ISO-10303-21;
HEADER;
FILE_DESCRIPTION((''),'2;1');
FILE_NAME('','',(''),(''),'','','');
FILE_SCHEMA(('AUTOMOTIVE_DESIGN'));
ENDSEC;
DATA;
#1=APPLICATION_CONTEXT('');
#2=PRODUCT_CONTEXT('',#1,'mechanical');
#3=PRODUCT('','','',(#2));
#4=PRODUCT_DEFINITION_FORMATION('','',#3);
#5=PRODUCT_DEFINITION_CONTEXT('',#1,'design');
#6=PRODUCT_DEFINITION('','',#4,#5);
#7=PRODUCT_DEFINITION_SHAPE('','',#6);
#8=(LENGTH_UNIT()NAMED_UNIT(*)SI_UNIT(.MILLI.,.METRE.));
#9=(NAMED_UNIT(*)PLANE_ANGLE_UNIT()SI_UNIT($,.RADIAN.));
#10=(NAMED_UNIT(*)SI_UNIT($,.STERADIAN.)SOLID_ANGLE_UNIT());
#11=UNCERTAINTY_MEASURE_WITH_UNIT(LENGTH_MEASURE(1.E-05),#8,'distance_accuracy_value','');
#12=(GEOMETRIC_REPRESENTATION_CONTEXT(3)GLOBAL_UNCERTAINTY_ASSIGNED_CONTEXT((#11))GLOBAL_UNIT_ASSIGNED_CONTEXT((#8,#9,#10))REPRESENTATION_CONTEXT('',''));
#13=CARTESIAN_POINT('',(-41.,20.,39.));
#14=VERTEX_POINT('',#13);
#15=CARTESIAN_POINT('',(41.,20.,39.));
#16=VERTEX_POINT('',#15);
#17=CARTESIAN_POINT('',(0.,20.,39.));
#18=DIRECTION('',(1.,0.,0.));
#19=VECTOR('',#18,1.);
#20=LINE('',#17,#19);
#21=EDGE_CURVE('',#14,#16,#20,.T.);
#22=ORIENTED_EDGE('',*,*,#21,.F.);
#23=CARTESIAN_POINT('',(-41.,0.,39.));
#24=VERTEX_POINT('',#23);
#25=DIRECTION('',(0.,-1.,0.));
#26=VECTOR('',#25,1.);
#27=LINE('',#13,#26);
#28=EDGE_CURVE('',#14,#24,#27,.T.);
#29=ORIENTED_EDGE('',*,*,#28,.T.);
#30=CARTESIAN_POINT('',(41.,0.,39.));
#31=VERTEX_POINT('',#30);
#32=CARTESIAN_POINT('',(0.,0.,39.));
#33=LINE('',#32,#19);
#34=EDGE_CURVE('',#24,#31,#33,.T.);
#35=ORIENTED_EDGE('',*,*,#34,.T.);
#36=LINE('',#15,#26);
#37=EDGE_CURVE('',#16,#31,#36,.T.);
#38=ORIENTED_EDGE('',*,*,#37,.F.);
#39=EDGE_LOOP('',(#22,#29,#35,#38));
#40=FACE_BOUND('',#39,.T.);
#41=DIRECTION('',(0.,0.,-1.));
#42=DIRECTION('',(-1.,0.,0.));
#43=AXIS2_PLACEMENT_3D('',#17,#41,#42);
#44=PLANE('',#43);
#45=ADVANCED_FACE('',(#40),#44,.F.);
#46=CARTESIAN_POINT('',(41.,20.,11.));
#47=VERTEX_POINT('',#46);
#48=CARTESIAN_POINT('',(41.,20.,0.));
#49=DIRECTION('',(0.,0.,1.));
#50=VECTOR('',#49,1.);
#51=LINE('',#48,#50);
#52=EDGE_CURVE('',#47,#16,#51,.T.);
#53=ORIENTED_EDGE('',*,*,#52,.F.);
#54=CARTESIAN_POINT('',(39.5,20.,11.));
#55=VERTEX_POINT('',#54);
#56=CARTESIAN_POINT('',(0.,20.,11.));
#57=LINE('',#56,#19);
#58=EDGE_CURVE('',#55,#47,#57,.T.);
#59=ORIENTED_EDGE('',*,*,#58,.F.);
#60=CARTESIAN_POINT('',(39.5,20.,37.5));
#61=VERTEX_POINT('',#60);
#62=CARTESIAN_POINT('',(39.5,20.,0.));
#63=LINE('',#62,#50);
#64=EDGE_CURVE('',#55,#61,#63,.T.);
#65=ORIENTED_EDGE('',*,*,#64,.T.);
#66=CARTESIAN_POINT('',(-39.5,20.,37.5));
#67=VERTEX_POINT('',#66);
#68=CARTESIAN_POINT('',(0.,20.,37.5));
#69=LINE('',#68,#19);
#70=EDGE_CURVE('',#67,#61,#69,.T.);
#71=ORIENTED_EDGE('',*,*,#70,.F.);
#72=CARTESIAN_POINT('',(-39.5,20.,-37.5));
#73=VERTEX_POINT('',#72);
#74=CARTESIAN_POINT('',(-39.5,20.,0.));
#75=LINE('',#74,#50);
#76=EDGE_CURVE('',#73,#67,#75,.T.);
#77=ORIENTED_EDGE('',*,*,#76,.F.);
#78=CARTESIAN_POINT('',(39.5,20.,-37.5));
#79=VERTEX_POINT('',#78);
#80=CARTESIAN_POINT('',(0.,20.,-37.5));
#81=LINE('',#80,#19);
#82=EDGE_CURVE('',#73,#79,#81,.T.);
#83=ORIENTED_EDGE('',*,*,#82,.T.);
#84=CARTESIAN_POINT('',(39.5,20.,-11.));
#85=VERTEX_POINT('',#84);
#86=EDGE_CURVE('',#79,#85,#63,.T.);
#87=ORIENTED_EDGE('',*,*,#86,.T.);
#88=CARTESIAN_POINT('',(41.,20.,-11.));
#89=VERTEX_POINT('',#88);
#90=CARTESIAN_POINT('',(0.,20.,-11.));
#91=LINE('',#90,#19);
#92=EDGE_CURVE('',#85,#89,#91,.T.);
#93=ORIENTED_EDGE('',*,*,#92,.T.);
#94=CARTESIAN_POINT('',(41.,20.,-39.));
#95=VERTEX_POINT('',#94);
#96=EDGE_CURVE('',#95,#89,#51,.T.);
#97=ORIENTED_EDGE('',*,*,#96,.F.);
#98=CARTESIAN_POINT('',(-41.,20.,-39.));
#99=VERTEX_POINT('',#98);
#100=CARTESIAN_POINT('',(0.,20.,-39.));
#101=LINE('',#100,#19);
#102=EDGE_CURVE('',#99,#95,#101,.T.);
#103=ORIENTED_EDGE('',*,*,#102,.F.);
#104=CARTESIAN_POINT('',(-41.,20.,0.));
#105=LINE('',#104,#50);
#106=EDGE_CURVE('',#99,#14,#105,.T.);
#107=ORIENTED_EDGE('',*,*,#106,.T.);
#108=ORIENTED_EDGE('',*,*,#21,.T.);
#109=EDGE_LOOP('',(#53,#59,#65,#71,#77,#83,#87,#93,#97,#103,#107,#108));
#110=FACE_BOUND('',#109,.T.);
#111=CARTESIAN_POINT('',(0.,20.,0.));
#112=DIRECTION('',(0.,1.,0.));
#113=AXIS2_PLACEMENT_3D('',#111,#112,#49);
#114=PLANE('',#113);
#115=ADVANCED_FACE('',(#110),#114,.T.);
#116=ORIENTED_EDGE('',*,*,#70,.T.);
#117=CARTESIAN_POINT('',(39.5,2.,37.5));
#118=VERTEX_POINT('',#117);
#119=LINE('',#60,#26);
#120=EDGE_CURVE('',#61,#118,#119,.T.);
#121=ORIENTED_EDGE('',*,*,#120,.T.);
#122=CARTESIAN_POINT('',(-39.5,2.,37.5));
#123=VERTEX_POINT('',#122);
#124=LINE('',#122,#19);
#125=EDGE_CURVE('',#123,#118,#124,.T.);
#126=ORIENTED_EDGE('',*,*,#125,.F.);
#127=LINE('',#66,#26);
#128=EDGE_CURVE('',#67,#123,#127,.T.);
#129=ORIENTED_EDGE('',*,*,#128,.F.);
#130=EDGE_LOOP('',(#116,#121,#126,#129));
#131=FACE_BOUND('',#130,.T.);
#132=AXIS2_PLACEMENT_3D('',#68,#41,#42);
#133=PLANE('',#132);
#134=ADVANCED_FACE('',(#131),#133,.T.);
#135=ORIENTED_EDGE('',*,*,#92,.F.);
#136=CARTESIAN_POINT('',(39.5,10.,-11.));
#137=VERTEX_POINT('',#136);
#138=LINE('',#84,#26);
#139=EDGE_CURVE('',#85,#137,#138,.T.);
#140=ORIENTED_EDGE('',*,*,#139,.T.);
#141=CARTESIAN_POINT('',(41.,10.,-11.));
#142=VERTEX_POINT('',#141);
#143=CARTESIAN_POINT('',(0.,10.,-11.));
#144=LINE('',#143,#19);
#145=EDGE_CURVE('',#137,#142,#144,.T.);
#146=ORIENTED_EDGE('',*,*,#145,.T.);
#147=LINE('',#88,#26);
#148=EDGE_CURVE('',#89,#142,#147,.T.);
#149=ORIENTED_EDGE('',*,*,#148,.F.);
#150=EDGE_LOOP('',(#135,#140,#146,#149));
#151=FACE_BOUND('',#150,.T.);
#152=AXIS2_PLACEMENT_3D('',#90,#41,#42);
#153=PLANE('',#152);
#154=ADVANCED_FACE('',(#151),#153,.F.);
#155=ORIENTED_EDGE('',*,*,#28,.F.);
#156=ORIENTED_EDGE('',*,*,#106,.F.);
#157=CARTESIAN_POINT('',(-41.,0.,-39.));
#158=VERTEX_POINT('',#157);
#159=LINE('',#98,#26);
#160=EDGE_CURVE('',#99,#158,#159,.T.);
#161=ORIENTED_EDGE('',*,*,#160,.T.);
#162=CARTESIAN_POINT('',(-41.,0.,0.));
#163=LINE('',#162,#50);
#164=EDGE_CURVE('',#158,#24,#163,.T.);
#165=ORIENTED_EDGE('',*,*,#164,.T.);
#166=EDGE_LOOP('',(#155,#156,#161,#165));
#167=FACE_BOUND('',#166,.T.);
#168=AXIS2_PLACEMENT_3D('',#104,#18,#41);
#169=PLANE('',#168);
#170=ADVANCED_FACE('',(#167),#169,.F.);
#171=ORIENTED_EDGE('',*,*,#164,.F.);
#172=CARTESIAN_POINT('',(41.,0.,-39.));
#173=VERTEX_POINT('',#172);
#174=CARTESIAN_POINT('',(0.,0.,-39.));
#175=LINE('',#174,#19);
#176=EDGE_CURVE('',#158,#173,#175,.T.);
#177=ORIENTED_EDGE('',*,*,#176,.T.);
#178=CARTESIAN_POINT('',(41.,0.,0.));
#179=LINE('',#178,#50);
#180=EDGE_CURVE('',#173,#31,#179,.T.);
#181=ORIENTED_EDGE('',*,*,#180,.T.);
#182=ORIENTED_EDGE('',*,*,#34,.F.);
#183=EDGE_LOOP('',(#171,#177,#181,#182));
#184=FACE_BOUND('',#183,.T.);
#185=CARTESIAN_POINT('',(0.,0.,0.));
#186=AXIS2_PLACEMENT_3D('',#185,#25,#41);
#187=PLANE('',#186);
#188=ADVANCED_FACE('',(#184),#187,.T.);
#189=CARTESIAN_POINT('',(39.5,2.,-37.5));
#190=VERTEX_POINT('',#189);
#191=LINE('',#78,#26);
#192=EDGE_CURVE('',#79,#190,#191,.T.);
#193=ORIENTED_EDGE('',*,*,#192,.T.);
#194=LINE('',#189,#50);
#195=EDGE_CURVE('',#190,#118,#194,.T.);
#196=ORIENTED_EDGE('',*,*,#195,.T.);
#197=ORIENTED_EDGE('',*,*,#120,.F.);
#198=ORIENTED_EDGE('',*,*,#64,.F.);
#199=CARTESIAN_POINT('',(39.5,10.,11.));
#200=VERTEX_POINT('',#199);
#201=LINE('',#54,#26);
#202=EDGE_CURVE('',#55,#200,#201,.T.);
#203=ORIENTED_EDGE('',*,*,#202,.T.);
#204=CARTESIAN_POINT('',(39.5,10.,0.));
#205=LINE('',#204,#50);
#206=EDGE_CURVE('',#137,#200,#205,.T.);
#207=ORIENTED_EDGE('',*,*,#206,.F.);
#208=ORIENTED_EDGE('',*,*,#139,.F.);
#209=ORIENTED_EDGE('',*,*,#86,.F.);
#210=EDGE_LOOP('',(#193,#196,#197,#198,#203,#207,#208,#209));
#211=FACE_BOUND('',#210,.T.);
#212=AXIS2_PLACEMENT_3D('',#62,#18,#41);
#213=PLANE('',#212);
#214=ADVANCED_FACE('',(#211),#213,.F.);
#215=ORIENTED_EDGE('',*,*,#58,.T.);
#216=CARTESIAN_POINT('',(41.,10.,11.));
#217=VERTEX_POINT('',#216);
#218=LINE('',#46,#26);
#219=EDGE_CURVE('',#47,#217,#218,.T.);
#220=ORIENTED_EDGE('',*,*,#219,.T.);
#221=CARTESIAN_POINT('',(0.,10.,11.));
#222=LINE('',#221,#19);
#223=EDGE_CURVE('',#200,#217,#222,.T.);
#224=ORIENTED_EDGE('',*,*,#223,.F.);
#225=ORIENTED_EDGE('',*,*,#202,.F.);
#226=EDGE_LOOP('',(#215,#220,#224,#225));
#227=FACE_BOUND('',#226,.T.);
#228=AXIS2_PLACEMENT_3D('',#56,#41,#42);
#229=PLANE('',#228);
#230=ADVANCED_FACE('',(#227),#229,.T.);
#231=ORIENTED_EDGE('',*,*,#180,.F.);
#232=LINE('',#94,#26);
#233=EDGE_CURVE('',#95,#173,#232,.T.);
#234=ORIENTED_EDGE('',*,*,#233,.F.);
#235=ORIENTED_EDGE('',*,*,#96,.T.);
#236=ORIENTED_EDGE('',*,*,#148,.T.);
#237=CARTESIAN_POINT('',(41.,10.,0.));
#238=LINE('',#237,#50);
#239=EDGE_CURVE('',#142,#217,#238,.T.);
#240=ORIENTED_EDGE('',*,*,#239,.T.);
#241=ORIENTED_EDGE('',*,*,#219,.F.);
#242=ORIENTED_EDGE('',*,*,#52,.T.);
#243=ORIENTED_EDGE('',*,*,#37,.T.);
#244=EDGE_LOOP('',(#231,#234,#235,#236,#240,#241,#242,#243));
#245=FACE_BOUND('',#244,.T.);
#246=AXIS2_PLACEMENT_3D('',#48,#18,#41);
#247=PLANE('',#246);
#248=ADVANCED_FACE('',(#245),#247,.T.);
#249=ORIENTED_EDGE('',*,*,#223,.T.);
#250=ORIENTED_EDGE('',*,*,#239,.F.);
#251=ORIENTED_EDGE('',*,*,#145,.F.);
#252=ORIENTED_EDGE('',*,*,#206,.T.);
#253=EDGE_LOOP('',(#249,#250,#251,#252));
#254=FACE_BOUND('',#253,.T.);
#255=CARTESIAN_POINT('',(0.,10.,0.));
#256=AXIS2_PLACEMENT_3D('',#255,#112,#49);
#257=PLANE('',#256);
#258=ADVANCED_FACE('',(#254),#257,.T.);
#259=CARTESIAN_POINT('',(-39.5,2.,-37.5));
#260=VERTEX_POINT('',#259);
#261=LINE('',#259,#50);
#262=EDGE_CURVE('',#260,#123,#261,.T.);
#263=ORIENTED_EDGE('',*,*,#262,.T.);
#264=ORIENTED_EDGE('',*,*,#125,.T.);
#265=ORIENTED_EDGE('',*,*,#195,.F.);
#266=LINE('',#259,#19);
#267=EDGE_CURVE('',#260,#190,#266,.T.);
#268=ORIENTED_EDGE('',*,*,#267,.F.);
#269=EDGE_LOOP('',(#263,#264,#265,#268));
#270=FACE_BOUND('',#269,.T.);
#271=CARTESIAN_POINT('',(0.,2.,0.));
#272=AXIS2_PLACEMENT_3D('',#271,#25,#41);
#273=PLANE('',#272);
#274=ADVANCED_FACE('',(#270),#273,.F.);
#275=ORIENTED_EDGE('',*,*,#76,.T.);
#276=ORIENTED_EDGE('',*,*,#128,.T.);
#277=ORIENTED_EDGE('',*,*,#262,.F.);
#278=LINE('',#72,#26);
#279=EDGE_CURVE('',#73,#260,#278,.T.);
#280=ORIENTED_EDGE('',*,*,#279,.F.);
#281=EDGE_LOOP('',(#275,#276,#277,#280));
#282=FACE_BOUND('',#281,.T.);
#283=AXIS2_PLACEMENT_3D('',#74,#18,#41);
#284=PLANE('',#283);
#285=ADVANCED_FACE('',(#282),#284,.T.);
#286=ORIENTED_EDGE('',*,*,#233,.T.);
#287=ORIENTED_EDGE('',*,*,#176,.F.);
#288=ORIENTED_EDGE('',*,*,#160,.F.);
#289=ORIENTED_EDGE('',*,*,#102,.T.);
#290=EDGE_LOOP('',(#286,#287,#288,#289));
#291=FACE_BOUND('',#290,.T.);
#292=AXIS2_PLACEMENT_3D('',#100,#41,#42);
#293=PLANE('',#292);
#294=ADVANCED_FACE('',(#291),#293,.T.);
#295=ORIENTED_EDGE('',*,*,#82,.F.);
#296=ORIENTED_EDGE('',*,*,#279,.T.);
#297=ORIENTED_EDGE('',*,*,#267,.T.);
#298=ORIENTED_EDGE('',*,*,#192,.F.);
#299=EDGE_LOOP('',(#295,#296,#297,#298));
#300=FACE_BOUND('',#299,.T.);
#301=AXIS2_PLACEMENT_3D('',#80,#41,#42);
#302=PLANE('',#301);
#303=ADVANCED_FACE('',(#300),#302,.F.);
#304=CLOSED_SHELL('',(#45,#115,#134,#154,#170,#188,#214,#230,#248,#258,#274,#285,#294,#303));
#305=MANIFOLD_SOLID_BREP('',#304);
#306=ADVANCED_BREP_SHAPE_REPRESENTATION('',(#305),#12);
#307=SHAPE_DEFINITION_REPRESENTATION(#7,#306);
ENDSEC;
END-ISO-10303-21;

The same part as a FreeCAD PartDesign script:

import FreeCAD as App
import Part
import Sketcher

V = App.Vector


def add_polygon(sketch, points):
    """Adds a closed chain of lines whose ends are joined by coincident constraints."""
    first, n = sketch.GeometryCount, len(points)
    for a, b in zip(points, points[1:] + points[:1]):
        sketch.addGeometry(Part.LineSegment(App.Vector(*a, 0), App.Vector(*b, 0)), False)
    for i in range(n):
        sketch.addConstraint(Sketcher.Constraint("Coincident", first + i, 2, first + (i + 1) % n, 1))

doc = App.newDocument("Part")
body = doc.addObject("PartDesign::Body", "Body")

# Sketch on XZ plane
sketch1 = doc.addObject("Sketcher::SketchObject", "Sketch")
body.addObject(sketch1)
sketch1.AttachmentSupport = (doc.XZ_Plane, [""])
sketch1.MapMode = "FlatFace"
add_polygon(sketch1, [(-39.5, -37.5), (-39.5, 37.5), (39.5, 37.5), (39.5, -37.5)])  # lines 0-3
sketch1.addConstraint([
    Sketcher.Constraint("Vertical", 0),
    Sketcher.Constraint("Horizontal", 1),
    Sketcher.Constraint("Vertical", 2),
    Sketcher.Constraint("Horizontal", 3),
    Sketcher.Constraint("Symmetric", 0, 2, 2, 2, -1, 1),
    Sketcher.Constraint("DistanceX", 1, 1, 1, 2, 79.0),
    Sketcher.Constraint("DistanceY", 0, 1, 0, 2, 75.0),
])
pad1 = doc.addObject("PartDesign::Pad", "Pad")
body.addObject(pad1)
pad1.Profile = sketch1
pad1.Length = 2
pad1.Reversed = True

# Sketch on XZ plane
sketch2 = doc.addObject("Sketcher::SketchObject", "Sketch001")
body.addObject(sketch2)
sketch2.AttachmentSupport = (doc.XZ_Plane, [""])
sketch2.MapMode = "FlatFace"
add_polygon(sketch2, [(-39.5, 37.5), (-39.5, -37.5), (39.5, -37.5), (39.5, -11), (41, -11), (41, -39), (-41, -39), (-41, 39), (41, 39), (41, 11), (39.5, 11), (39.5, 37.5)])  # lines 0-11
sketch2.addConstraint([
    Sketcher.Constraint("Vertical", 0),
    Sketcher.Constraint("Horizontal", 1),
    Sketcher.Constraint("Vertical", 2),
    Sketcher.Constraint("Horizontal", 3),
    Sketcher.Constraint("Vertical", 4),
    Sketcher.Constraint("Horizontal", 5),
    Sketcher.Constraint("Vertical", 6),
    Sketcher.Constraint("Horizontal", 7),
    Sketcher.Constraint("Vertical", 8),
    Sketcher.Constraint("Horizontal", 9),
    Sketcher.Constraint("Vertical", 10),
    Sketcher.Constraint("Horizontal", 11),
    Sketcher.Constraint("Symmetric", 4, 2, 6, 2, -1, 1),
    Sketcher.Constraint("Symmetric", 0, 2, 10, 2, -1, 1),
    Sketcher.Constraint("Symmetric", 3, 2, 8, 2, -1),
    Sketcher.Constraint("Vertical", 2, 2, 9, 2),
    Sketcher.Constraint("DistanceX", 1, 1, 1, 2, 79.0),
    Sketcher.Constraint("DistanceX", 5, 2, 5, 1, 82.0),
    Sketcher.Constraint("DistanceY", 0, 2, 0, 1, 75.0),
    Sketcher.Constraint("DistanceY", 4, 2, 4, 1, 28.0),
    Sketcher.Constraint("DistanceY", 6, 1, 6, 2, 78.0),
])
pad2 = doc.addObject("PartDesign::Pad", "Pad001")
body.addObject(pad2)
pad2.Profile = sketch2
pad2.Length = 20
pad2.Reversed = True

# Sketch on XZ plane
sketch3 = doc.addObject("Sketcher::SketchObject", "Sketch002")
body.addObject(sketch3)
sketch3.AttachmentSupport = (doc.XZ_Plane, [""])
sketch3.MapMode = "FlatFace"
add_polygon(sketch3, [(39.5, -11), (39.5, 11), (41, 11), (41, -11)])  # lines 0-3
sketch3.addConstraint([
    Sketcher.Constraint("Vertical", 0),
    Sketcher.Constraint("Horizontal", 1),
    Sketcher.Constraint("Vertical", 2),
    Sketcher.Constraint("Horizontal", 3),
    Sketcher.Constraint("DistanceY", 0, 1, 0, 2, 22.0),
    Sketcher.Constraint("DistanceX", 1, 1, 1, 2, 1.5),
    Sketcher.Constraint("DistanceY", -1, 1, 0, 2, 11.0),
    Sketcher.Constraint("DistanceX", -1, 1, 1, 2, 41.0),
])
pad3 = doc.addObject("PartDesign::Pad", "Pad002")
body.addObject(pad3)
pad3.Profile = sketch3
pad3.Length = 10
pad3.Reversed = True

doc.recompute()
